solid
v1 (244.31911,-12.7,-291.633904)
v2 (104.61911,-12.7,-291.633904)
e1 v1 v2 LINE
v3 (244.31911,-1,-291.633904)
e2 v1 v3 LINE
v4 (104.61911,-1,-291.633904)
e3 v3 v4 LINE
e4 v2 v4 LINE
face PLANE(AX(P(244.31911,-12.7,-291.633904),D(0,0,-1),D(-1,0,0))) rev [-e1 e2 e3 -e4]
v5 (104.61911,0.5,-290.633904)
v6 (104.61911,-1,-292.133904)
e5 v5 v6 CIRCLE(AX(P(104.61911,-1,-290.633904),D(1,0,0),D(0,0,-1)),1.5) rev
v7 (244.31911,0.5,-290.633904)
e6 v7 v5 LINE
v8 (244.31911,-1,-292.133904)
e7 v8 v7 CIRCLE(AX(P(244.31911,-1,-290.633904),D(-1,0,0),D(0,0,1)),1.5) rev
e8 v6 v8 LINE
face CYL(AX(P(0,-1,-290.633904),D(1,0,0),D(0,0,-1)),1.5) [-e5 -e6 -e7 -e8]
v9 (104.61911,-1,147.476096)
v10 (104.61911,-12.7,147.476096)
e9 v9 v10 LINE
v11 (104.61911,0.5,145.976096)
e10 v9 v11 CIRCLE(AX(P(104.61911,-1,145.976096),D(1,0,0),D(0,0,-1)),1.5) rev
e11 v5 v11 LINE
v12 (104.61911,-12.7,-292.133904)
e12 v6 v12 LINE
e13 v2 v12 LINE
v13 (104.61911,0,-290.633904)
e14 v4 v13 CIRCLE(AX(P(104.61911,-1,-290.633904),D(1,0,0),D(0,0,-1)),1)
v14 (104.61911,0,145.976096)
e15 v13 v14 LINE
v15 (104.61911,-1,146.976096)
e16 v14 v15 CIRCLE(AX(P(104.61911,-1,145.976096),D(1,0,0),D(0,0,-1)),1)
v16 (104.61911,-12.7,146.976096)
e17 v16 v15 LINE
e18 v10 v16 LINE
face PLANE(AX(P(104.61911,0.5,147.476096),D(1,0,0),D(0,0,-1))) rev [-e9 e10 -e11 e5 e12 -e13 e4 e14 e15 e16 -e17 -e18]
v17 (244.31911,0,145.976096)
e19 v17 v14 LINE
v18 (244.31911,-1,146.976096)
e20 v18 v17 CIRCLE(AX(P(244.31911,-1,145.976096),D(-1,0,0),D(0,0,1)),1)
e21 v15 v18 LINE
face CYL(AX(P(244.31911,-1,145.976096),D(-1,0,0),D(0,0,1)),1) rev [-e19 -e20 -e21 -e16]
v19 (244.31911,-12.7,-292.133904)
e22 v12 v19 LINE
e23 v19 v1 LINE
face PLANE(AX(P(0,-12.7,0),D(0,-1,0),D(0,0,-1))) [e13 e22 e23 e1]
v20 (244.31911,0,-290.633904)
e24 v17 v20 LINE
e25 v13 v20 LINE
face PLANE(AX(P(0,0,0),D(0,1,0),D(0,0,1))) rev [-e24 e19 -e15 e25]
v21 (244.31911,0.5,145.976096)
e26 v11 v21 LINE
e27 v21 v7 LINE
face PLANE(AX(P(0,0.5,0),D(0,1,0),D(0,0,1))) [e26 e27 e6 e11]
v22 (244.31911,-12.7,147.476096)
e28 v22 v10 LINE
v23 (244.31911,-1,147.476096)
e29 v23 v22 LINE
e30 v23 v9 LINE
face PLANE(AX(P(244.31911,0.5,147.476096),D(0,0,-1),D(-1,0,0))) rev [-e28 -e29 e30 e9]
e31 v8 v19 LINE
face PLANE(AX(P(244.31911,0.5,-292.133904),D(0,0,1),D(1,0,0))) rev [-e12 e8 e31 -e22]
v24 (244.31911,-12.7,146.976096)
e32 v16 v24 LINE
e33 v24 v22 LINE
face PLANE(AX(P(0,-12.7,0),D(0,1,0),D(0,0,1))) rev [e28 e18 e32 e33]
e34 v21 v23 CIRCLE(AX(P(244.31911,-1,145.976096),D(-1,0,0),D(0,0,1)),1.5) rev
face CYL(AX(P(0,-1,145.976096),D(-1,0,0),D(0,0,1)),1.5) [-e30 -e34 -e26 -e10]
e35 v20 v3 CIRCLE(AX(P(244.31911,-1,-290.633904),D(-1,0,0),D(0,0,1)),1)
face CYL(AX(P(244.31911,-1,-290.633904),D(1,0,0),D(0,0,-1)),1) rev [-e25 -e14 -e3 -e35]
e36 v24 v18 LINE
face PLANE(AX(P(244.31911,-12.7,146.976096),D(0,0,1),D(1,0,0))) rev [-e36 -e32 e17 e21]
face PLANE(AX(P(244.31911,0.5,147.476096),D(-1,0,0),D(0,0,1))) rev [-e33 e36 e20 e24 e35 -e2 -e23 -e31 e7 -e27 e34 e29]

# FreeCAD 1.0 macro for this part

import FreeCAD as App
import Part
import Sketcher

V = App.Vector


def edges_at(feature, points):
    """Names of the edges that pass closest to the given points."""
    edges = feature.Shape.Edges
    near = lambda p: min(range(len(edges)), key=lambda i: edges[i].distToShape(Part.Vertex(*p))[0])
    return sorted({f"Edge{near(p) + 1}" for p in points})

doc = App.newDocument("Part")
body = doc.addObject("PartDesign::Body", "Body")

sketch1 = doc.addObject("Sketcher::SketchObject", "Sketch")
body.addObject(sketch1)
sketch1.AttachmentSupport = (doc.XZ_Plane, [""])
sketch1.MapMode = "FlatFace"
sketch1.addGeometry(Part.LineSegment(V(105, -292, 0), V(105, 147, 0)), False)
sketch1.addGeometry(Part.LineSegment(V(105, 147, 0), V(244, 147, 0)), False)
sketch1.addGeometry(Part.LineSegment(V(244, 147, 0), V(244, -292, 0)), False)
sketch1.addGeometry(Part.LineSegment(V(244, -292, 0), V(105, -292, 0)), False)
sketch1.addConstraint(Sketcher.Constraint("Coincident", 0, 2, 1, 1))
sketch1.addConstraint(Sketcher.Constraint("Coincident", 1, 2, 2, 1))
sketch1.addConstraint(Sketcher.Constraint("Coincident", 2, 2, 3, 1))
sketch1.addConstraint(Sketcher.Constraint("Coincident", 3, 2, 0, 1))
sketch1.addConstraint(Sketcher.Constraint("Vertical", 0))
sketch1.addConstraint(Sketcher.Constraint("Horizontal", 1))
sketch1.addConstraint(Sketcher.Constraint("Vertical", 2))
sketch1.addConstraint(Sketcher.Constraint("Horizontal", 3))
sketch1.addConstraint(Sketcher.Constraint("DistanceX", 1, 1, 1, 2, 139.7))
sketch1.addConstraint(Sketcher.Constraint("DistanceY", 0, 1, 0, 2, 439.61))
sketch1.addConstraint(Sketcher.Constraint("DistanceX", -1, 1, 0, 2, 104.61911))
sketch1.addConstraint(Sketcher.Constraint("DistanceY", -1, 1, 0, 2, 147.476096))
pad1 = doc.addObject("PartDesign::Pad", "Pad")
body.addObject(pad1)
pad1.Profile = sketch1
pad1.Length = 0.5
pad1.Reversed = True

sketch2 = doc.addObject("Sketcher::SketchObject", "Sketch001")
body.addObject(sketch2)
sketch2.AttachmentSupport = (doc.XZ_Plane, [""])
sketch2.MapMode = "FlatFace"
sketch2.addGeometry(Part.LineSegment(V(104.6, 147.5, 0), V(104.6, 147, 0)), False)
sketch2.addGeometry(Part.LineSegment(V(104.6, 147, 0), V(244.3, 147, 0)), False)
sketch2.addGeometry(Part.LineSegment(V(244.3, 147, 0), V(244.3, 147.5, 0)), False)
sketch2.addGeometry(Part.LineSegment(V(244.3, 147.5, 0), V(104.6, 147.5, 0)), False)
sketch2.addConstraint(Sketcher.Constraint("Coincident", 0, 2, 1, 1))
sketch2.addConstraint(Sketcher.Constraint("Coincident", 1, 2, 2, 1))
sketch2.addConstraint(Sketcher.Constraint("Coincident", 2, 2, 3, 1))
sketch2.addConstraint(Sketcher.Constraint("Coincident", 3, 2, 0, 1))
sketch2.addConstraint(Sketcher.Constraint("Vertical", 0))
sketch2.addConstraint(Sketcher.Constraint("Horizontal", 1))
sketch2.addConstraint(Sketcher.Constraint("Vertical", 2))
sketch2.addConstraint(Sketcher.Constraint("Horizontal", 3))
sketch2.addConstraint(Sketcher.Constraint("DistanceX", 1, 1, 1, 2, 139.7))
sketch2.addConstraint(Sketcher.Constraint("DistanceY", 0, 2, 0, 1, 0.5))
sketch2.addConstraint(Sketcher.Constraint("DistanceX", -1, 1, 0, 2, 104.61911))
sketch2.addConstraint(Sketcher.Constraint("DistanceY", -1, 1, 0, 2, 146.976096))
pad2 = doc.addObject("PartDesign::Pad", "Pad001")
body.addObject(pad2)
pad2.Profile = sketch2
pad2.Length = 12.7
doc.recompute()

fillet = doc.addObject("PartDesign::Fillet", "Fillet")
body.addObject(fillet)
fillet.Base = (pad2, edges_at(pad2, [(174.469, 0, 146.976)]))
fillet.Radius = 1
doc.recompute()

fillet2 = doc.addObject("PartDesign::Fillet", "Fillet001")
body.addObject(fillet2)
fillet2.Base = (fillet, edges_at(fillet, [(174.469, 0.5, 147.476)]))
fillet2.Radius = 1.5

sketch3 = doc.addObject("Sketcher::SketchObject", "Sketch002")
body.addObject(sketch3)
sketch3.AttachmentSupport = (doc.XZ_Plane, [""])
sketch3.MapMode = "FlatFace"
sketch3.addGeometry(Part.LineSegment(V(104.6, -291.6, 0), V(104.6, -292.1, 0)), False)
sketch3.addGeometry(Part.LineSegment(V(104.6, -292.1, 0), V(244.3, -292.1, 0)), False)
sketch3.addGeometry(Part.LineSegment(V(244.3, -292.1, 0), V(244.3, -291.6, 0)), False)
sketch3.addGeometry(Part.LineSegment(V(244.3, -291.6, 0), V(104.6, -291.6, 0)), False)
sketch3.addConstraint(Sketcher.Constraint("Coincident", 0, 2, 1, 1))
sketch3.addConstraint(Sketcher.Constraint("Coincident", 1, 2, 2, 1))
sketch3.addConstraint(Sketcher.Constraint("Coincident", 2, 2, 3, 1))
sketch3.addConstraint(Sketcher.Constraint("Coincident", 3, 2, 0, 1))
sketch3.addConstraint(Sketcher.Constraint("Vertical", 0))
sketch3.addConstraint(Sketcher.Constraint("Horizontal", 1))
sketch3.addConstraint(Sketcher.Constraint("Vertical", 2))
sketch3.addConstraint(Sketcher.Constraint("Horizontal", 3))
sketch3.addConstraint(Sketcher.Constraint("DistanceX", 1, 1, 1, 2, 139.7))
sketch3.addConstraint(Sketcher.Constraint("DistanceY", 0, 2, 0, 1, 0.5))
sketch3.addConstraint(Sketcher.Constraint("DistanceX", -1, 1, 0, 2, 104.61911))
sketch3.addConstraint(Sketcher.Constraint("DistanceY", 0, 2, -1, 1, 292.133904))
pad3 = doc.addObject("PartDesign::Pad", "Pad002")
body.addObject(pad3)
pad3.Profile = sketch3
pad3.Length = 12.7
doc.recompute()

fillet3 = doc.addObject("PartDesign::Fillet", "Fillet002")
body.addObject(fillet3)
fillet3.Base = (pad3, edges_at(pad3, [(174.469, 0, -291.634)]))
fillet3.Radius = 1
doc.recompute()

fillet4 = doc.addObject("PartDesign::Fillet", "Fillet003")
body.addObject(fillet4)
fillet4.Base = (fillet3, edges_at(fillet3, [(174.469, 0.5, -292.134)]))
fillet4.Radius = 1.5

doc.recompute()
